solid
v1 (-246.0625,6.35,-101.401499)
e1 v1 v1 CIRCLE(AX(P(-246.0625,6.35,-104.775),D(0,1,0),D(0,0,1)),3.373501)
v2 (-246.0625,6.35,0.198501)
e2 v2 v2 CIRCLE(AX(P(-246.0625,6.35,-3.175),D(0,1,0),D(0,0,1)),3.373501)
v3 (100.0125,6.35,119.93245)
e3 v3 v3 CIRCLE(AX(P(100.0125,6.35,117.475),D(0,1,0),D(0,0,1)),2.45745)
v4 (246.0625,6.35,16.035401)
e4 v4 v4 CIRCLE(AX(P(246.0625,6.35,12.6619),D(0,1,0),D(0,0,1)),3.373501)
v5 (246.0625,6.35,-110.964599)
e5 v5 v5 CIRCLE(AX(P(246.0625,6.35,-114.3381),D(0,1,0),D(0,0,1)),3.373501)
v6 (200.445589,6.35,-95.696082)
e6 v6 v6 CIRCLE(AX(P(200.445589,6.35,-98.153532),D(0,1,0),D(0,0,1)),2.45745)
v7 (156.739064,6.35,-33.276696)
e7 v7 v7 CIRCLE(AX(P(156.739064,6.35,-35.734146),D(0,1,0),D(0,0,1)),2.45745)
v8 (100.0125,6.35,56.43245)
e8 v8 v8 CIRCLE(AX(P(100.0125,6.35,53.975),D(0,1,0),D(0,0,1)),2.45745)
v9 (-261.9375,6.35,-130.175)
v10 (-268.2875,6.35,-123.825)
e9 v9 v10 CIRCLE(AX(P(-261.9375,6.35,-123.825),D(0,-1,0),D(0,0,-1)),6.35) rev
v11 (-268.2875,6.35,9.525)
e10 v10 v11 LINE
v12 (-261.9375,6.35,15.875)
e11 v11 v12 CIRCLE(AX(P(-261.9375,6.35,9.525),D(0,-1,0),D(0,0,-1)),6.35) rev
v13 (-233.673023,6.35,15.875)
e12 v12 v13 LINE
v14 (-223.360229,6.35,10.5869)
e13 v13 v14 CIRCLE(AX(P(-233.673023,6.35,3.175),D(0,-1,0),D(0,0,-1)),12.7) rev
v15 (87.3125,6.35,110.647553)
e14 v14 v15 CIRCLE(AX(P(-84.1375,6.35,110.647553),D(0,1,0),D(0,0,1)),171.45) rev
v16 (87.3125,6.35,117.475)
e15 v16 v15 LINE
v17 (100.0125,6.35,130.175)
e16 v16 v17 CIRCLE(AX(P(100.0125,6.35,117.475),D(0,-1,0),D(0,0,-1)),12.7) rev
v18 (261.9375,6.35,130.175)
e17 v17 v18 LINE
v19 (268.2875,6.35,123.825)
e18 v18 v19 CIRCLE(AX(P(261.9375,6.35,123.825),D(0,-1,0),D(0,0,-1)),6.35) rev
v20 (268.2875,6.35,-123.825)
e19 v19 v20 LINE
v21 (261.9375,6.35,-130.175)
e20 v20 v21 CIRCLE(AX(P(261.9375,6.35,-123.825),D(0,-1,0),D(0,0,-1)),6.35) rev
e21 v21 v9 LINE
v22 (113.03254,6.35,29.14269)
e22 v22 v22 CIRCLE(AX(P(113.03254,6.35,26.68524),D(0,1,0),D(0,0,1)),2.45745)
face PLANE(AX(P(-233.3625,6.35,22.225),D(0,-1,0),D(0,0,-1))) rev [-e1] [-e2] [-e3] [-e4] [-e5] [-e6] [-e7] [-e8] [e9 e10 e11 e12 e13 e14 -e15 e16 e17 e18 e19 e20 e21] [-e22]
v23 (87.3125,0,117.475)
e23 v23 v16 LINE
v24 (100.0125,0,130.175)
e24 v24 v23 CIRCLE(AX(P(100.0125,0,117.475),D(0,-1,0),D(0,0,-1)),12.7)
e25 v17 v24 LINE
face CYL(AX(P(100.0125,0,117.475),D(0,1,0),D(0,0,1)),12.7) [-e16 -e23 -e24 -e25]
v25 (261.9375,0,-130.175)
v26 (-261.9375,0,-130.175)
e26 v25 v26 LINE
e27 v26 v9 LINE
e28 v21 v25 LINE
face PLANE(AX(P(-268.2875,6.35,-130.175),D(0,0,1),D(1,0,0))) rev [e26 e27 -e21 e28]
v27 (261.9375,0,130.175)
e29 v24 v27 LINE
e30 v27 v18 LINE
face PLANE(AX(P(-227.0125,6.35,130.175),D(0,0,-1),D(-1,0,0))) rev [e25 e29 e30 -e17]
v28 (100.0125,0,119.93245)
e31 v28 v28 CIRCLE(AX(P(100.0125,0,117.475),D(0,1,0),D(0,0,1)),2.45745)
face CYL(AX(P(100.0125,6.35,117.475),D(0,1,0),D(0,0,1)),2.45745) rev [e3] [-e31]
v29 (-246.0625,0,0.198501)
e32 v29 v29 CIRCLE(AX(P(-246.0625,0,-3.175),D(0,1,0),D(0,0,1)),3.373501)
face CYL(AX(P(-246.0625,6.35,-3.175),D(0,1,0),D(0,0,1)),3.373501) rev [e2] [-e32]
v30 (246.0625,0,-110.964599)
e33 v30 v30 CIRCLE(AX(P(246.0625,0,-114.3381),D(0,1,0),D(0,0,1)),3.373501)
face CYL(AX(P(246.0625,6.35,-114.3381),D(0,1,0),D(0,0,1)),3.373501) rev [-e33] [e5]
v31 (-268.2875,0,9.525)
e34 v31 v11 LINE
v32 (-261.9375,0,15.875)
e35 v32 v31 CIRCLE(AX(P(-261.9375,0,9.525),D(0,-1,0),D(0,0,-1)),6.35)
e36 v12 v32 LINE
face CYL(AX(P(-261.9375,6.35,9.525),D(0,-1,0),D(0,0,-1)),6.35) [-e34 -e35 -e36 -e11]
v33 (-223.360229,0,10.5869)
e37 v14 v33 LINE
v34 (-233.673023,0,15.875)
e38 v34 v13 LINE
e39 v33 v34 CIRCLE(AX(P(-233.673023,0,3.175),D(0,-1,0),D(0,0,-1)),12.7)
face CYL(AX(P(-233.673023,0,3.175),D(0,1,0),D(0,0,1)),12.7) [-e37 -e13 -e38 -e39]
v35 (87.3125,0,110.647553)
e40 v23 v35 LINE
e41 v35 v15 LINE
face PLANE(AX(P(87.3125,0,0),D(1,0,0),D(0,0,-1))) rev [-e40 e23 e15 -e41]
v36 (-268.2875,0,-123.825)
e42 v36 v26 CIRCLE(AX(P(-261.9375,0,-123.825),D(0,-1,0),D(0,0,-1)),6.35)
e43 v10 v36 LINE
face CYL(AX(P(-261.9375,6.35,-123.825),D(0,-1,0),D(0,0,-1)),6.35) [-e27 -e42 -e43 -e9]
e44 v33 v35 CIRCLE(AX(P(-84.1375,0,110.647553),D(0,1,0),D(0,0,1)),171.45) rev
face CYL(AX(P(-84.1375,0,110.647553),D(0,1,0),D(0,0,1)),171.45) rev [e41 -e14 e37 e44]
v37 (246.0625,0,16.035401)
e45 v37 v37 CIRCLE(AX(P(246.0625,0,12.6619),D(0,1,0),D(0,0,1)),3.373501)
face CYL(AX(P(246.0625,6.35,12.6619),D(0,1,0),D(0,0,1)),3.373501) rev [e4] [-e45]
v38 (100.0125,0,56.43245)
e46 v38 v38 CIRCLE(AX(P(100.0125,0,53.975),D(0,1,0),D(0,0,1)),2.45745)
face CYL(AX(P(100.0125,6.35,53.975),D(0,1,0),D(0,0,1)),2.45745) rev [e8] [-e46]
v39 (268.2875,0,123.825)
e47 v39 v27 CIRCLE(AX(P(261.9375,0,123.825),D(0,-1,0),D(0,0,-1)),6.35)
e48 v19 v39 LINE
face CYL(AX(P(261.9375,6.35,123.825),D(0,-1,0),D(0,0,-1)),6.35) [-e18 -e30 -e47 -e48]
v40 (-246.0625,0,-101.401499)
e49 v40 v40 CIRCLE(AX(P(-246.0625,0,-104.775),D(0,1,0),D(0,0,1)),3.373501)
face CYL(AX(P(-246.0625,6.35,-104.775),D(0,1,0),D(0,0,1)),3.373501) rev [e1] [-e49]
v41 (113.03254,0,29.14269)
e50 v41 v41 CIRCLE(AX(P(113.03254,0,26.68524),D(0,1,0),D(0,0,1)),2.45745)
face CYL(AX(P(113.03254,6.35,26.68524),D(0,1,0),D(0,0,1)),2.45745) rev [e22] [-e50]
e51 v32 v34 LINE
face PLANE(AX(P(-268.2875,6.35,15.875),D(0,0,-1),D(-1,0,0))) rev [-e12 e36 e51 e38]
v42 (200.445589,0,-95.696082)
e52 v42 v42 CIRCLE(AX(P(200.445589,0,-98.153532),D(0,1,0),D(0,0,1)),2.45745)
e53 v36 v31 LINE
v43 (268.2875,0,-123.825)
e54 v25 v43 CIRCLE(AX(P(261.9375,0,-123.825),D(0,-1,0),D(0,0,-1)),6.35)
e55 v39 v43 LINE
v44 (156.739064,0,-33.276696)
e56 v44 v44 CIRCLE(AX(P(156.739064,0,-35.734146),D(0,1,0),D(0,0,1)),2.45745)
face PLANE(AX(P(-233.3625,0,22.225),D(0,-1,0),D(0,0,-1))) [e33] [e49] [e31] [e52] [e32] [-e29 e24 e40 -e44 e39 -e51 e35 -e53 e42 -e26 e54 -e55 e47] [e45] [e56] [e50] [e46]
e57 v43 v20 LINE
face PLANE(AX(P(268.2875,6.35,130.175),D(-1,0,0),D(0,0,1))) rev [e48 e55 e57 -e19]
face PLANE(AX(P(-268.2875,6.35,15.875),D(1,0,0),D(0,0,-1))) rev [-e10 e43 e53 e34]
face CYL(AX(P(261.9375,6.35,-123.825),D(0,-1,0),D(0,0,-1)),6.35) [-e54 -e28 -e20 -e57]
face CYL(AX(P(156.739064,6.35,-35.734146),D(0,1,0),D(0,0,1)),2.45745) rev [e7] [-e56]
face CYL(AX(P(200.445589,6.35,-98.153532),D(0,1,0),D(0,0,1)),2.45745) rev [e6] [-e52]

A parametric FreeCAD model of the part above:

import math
import FreeCAD as App
import Part
import Sketcher

V = App.Vector
Q = App.Units.Quantity


def edges_at(feature, points):
    """Names of the edges that pass closest to the given points."""
    edges = feature.Shape.Edges
    near = lambda p: min(range(len(edges)), key=lambda i: edges[i].distToShape(Part.Vertex(*p))[0])
    return sorted({f"Edge{near(p) + 1}" for p in points})

doc = App.newDocument("Part")
body = doc.addObject("PartDesign::Body", "Body")

# Sketch on XZ plane
sketch1 = body.newObject("Sketcher::SketchObject", "Sketch")
sketch1.AttachmentSupport = (doc.getObject("XZ_Plane"), [""])
sketch1.MapMode = "FlatFace"
sketch1.addGeometry([
    Part.LineSegment(V(-268, 16, 0), V(-233, 16, 0)),  # 0
    Part.ArcOfCircle(Part.Circle(V(-233, 22, 0), V(0, 0, 1), 6), math.radians(-90), math.radians(0)),  # 1
    Part.LineSegment(V(-227, 22, 0), V(-227, 130, 0)),  # 2
    Part.LineSegment(V(-227, 130, 0), V(268, 130, 0)),  # 3
    Part.LineSegment(V(268, 130, 0), V(268, -130, 0)),  # 4
    Part.LineSegment(V(268, -130, 0), V(-268, -130, 0)),  # 5
    Part.LineSegment(V(-268, -130, 0), V(-268, 16, 0)),  # 6
], False)
sketch1.addConstraint([
    Sketcher.Constraint("Tangent", 0, 2, 1, 1),
    Sketcher.Constraint("Tangent", 1, 2, 2, 1),
    Sketcher.Constraint("Coincident", 2, 2, 3, 1),
    Sketcher.Constraint("Coincident", 3, 2, 4, 1),
    Sketcher.Constraint("Coincident", 4, 2, 5, 1),
    Sketcher.Constraint("Coincident", 5, 2, 6, 1),
    Sketcher.Constraint("Coincident", 6, 2, 0, 1),
    Sketcher.Constraint("Horizontal", 0),
    Sketcher.Constraint("Vertical", 2),
    Sketcher.Constraint("Horizontal", 3),
    Sketcher.Constraint("Vertical", 4),
    Sketcher.Constraint("Horizontal", 5),
    Sketcher.Constraint("Vertical", 6),
    Sketcher.Constraint("Symmetric", 3, 2, 5, 2, -1, 1),
    Sketcher.Constraint("Radius", 1, Q("0.25 in")),
    Sketcher.Constraint("DistanceX", 3, 1, 3, 2, Q("19.5 in")),
    Sketcher.Constraint("DistanceY", 4, 2, 1, 2, Q("6 in")),
    Sketcher.Constraint("DistanceY", 2, 1, 2, 2, Q("4.25 in")),
    Sketcher.Constraint("DistanceX", 0, 1, 0, 2, Q("1.375 in")),
])
pad1 = body.newObject("PartDesign::Pad", "Pad")
pad1.Profile = sketch1
pad1.Length = Q("0.25 in")
pad1.Reversed = True

# Sketch on XZ plane
sketch2 = body.newObject("Sketcher::SketchObject", "Sketch001")
sketch2.AttachmentSupport = (doc.getObject("XZ_Plane"), [""])
sketch2.MapMode = "FlatFace"
sketch2.AttachmentOffset = App.Placement(V(0, 0, -0.25 * 25.4), App.Rotation())
sketch2.addGeometry([
    Part.Circle(V(-246.1, -104.8, 0), V(0, 0, 1), 3.4),  # 0
    Part.Circle(V(-246.1, -3.2, 0), V(0, 0, 1), 3.4),  # 1
    Part.Circle(V(-220.7, 54, 0), V(0, 0, 1), 3.4),  # 2
    Part.Circle(V(-220.7, 117.5, 0), V(0, 0, 1), 3.4),  # 3
    Part.Circle(V(246.1, -114.3, 0), V(0, 0, 1), 3.4),  # 4
    Part.Circle(V(246.1, 12.7, 0), V(0, 0, 1), 3.4),  # 5
], False)
sketch2.addConstraint([
    Sketcher.Constraint("Equal", 0, 1),
    Sketcher.Constraint("Equal", 1, 2),
    Sketcher.Constraint("Equal", 2, 3),
    Sketcher.Constraint("Equal", 3, 4),
    Sketcher.Constraint("Equal", 4, 5),
    Sketcher.Constraint("Vertical", 0, 3, 1, 3),
    Sketcher.Constraint("Vertical", 2, 3, 3, 3),
    Sketcher.Constraint("Vertical", 4, 3, 5, 3),
    Sketcher.Constraint("DistanceY", 0, 3, 1, 3, Q("4 in")),
    Sketcher.Constraint("DistanceX", 1, 3, 2, 3, Q("1 in")),
    Sketcher.Constraint("DistanceY", 4, 3, 5, 3, Q("5 in")),
    Sketcher.Constraint("DistanceY", 2, 3, 3, 3, Q("2.5 in")),
    Sketcher.Constraint("DistanceY", 1, 3, 2, 3, Q("2.25 in")),
    Sketcher.Constraint("DistanceX", 0, 3, -1, 1, Q("9.6875 in")),
    Sketcher.Constraint("DistanceY", 0, 3, -1, 1, Q("4.125 in")),
    Sketcher.Constraint("DistanceX", -1, 1, 4, 3, Q("9.6875 in")),
    Sketcher.Constraint("Diameter", 0, 6.747002),
    Sketcher.Constraint("DistanceY", 4, 3, -1, 1, Q("4.5015 in")),
])
doc.recompute()
hole = body.newObject("PartDesign::Hole", "Hole")
hole.Profile = sketch2
hole.ThreadType = "None"
hole.Diameter = 6.747002
hole.DepthType = "ThroughAll"
hole.Reversed = True
doc.recompute()

fillet = body.newObject("PartDesign::Fillet", "Fillet")
fillet.Base = (hole, edges_at(hole, [
    (268.288, 3.175, 130.175),
    (-227.012, 3.175, 130.175),
    (-268.288, 3.175, 15.875),
    (-268.288, 3.175, -130.175),
    (268.288, 3.175, -130.175),
]))
fillet.Radius = Q("0.25 in")

# Sketch on XZ plane
sketch3 = body.newObject("Sketcher::SketchObject", "Sketch002")
sketch3.AttachmentSupport = (doc.getObject("XZ_Plane"), [""])
sketch3.MapMode = "FlatFace"
sketch3.AttachmentOffset = App.Placement(V(0, 0, -0.25 * 25.4), App.Rotation())
sketch3.addGeometry([
    Part.Circle(V(200.4, -98.2, 0), V(0, 0, 1), 2.5),  # 0
    Part.Circle(V(156.7, -35.7, 0), V(0, 0, 1), 2.5),  # 1
    Part.Circle(V(113, 26.7, 0), V(0, 0, 1), 2.5),  # 2
    Part.Circle(V(100, 54, 0), V(0, 0, 1), 2.5),  # 3
    Part.Circle(V(100, 117.5, 0), V(0, 0, 1), 2.5),  # 4
], False)
sketch3.addConstraint([
    Sketcher.Constraint("Equal", 0, 1),
    Sketcher.Constraint("Equal", 1, 2),
    Sketcher.Constraint("Equal", 2, 3),
    Sketcher.Constraint("Equal", 3, 4),
    Sketcher.Constraint("Vertical", 3, 3, 4, 3),
    Sketcher.Constraint("Diameter", 0, Q("0.1935 in")),
    Sketcher.Constraint("DistanceY", 3, 3, 4, 3, Q("2.5 in")),
    Sketcher.Constraint("DistanceX", -1, 1, 3, 3, Q("3.9375 in")),
    Sketcher.Constraint("DistanceY", -1, 1, 3, 3, Q("2.125 in")),
    Sketcher.Constraint("DistanceX", -1, 1, 2, 3, Q("4.4501 in")),
    Sketcher.Constraint("DistanceY", -1, 1, 2, 3, Q("1.0506 in")),
    Sketcher.Constraint("DistanceX", -1, 1, 0, 3, 200.445589),
    Sketcher.Constraint("DistanceY", 0, 3, -1, 1, 98.153532),
    Sketcher.Constraint("DistanceX", -1, 1, 1, 3, 156.739064),
    Sketcher.Constraint("DistanceY", 1, 3, -1, 1, 35.734146),
])
doc.recompute()
hole2 = body.newObject("PartDesign::Hole", "Hole001")
hole2.Profile = sketch3
hole2.ThreadType = "None"
hole2.Diameter = Q("0.1935 in")
hole2.DepthType = "ThroughAll"
hole2.Reversed = True

# Sketch on XZ plane
sketch4 = body.newObject("Sketcher::SketchObject", "Sketch003")
sketch4.AttachmentSupport = (doc.getObject("XZ_Plane"), [""])
sketch4.MapMode = "FlatFace"
sketch4.AttachmentOffset = App.Placement(V(0, 0, -0.25 * 25.4), App.Rotation())
sketch4.addGeometry([
    Part.LineSegment(V(-220.7, 130.2, 0), V(87.3, 130.2, 0)),  # 0
    Part.LineSegment(V(87.3, 130.2, 0), V(87.3, 110.6, 0)),  # 1
    Part.ArcOfCircle(Part.Circle(V(-84.1, 110.6, 0), V(0, 0, 1), 171.4), math.radians(-146), math.radians(0)),  # 2
    Part.LineSegment(V(-227, 15.9, 0), V(-233.4, 15.9, 0)),  # 3
    Part.ArcOfCircle(Part.Circle(V(-233.4, 22.2, 0), V(0, 0, 1), 6.3), math.radians(-90), math.radians(0)),  # 4
    Part.LineSegment(V(-227, 22.2, 0), V(-227, 123.8, 0)),  # 5
    Part.ArcOfCircle(Part.Circle(V(-220.7, 123.8, 0), V(0, 0, 1), 6.3), math.radians(90), math.radians(180)),  # 6
    Part.Circle(V(-220.7, 117.5, 0), V(0, 0, 1), 3.4),  # 7
    Part.Circle(V(-220.7, 54, 0), V(0, 0, 1), 3.4),  # 8
], False)
sketch4.addConstraint([
    Sketcher.Constraint("Coincident", 0, 2, 1, 1),
    Sketcher.Constraint("Tangent", 1, 2, 2, 2),
    Sketcher.Constraint("Coincident", 2, 1, 3, 1),
    Sketcher.Constraint("Tangent", 3, 2, 4, 1),
    Sketcher.Constraint("Tangent", 4, 2, 5, 1),
    Sketcher.Constraint("Tangent", 5, 2, 6, 2),
    Sketcher.Constraint("Tangent", 6, 1, 0, 1),
    Sketcher.Constraint("Horizontal", 0),
    Sketcher.Constraint("Vertical", 1),
    Sketcher.Constraint("Horizontal", 3),
    Sketcher.Constraint("Vertical", 5),
    Sketcher.Constraint("Equal", 4, 6),
    Sketcher.Constraint("Equal", 7, 8),
    Sketcher.Constraint("Vertical", 6, 3, 7, 3),
    Sketcher.Constraint("Vertical", 7, 3, 8, 3),
    Sketcher.Constraint("Vertical", 2, 1, 4, 2),
    Sketcher.Constraint("DistanceY", 5, 1, 5, 2, Q("4 in")),
    Sketcher.Constraint("Radius", 2, Q("6.75 in")),
    Sketcher.Constraint("Radius", 4, Q("0.25 in")),
    Sketcher.Constraint("DistanceY", 8, 3, 0, 2, Q("3 in")),
    Sketcher.Constraint("DistanceY", 2, 1, 7, 3, Q("4 in")),
    Sketcher.Constraint("DistanceX", 0, 1, 0, 2, Q("12.125 in")),
    Sketcher.Constraint("DistanceX", 2, 3, -1, 1, Q("3.3125 in")),
    Sketcher.Constraint("DistanceY", -1, 1, 4, 3, Q("0.875 in")),
    Sketcher.Constraint("Diameter", 7, 6.747002),
])
pocket1 = body.newObject("PartDesign::Pocket", "Pocket")
pocket1.Profile = sketch4
pocket1.Type = "ThroughAll"
pocket1.Reversed = True
doc.recompute()

fillet2 = body.newObject("PartDesign::Fillet", "Fillet001")
fillet2.Base = (pocket1, edges_at(pocket1, [(-227.012, 3.175, 15.875), (87.312, 3.175, 130.175)]))
fillet2.Radius = Q("0.5 in")

doc.recompute()
